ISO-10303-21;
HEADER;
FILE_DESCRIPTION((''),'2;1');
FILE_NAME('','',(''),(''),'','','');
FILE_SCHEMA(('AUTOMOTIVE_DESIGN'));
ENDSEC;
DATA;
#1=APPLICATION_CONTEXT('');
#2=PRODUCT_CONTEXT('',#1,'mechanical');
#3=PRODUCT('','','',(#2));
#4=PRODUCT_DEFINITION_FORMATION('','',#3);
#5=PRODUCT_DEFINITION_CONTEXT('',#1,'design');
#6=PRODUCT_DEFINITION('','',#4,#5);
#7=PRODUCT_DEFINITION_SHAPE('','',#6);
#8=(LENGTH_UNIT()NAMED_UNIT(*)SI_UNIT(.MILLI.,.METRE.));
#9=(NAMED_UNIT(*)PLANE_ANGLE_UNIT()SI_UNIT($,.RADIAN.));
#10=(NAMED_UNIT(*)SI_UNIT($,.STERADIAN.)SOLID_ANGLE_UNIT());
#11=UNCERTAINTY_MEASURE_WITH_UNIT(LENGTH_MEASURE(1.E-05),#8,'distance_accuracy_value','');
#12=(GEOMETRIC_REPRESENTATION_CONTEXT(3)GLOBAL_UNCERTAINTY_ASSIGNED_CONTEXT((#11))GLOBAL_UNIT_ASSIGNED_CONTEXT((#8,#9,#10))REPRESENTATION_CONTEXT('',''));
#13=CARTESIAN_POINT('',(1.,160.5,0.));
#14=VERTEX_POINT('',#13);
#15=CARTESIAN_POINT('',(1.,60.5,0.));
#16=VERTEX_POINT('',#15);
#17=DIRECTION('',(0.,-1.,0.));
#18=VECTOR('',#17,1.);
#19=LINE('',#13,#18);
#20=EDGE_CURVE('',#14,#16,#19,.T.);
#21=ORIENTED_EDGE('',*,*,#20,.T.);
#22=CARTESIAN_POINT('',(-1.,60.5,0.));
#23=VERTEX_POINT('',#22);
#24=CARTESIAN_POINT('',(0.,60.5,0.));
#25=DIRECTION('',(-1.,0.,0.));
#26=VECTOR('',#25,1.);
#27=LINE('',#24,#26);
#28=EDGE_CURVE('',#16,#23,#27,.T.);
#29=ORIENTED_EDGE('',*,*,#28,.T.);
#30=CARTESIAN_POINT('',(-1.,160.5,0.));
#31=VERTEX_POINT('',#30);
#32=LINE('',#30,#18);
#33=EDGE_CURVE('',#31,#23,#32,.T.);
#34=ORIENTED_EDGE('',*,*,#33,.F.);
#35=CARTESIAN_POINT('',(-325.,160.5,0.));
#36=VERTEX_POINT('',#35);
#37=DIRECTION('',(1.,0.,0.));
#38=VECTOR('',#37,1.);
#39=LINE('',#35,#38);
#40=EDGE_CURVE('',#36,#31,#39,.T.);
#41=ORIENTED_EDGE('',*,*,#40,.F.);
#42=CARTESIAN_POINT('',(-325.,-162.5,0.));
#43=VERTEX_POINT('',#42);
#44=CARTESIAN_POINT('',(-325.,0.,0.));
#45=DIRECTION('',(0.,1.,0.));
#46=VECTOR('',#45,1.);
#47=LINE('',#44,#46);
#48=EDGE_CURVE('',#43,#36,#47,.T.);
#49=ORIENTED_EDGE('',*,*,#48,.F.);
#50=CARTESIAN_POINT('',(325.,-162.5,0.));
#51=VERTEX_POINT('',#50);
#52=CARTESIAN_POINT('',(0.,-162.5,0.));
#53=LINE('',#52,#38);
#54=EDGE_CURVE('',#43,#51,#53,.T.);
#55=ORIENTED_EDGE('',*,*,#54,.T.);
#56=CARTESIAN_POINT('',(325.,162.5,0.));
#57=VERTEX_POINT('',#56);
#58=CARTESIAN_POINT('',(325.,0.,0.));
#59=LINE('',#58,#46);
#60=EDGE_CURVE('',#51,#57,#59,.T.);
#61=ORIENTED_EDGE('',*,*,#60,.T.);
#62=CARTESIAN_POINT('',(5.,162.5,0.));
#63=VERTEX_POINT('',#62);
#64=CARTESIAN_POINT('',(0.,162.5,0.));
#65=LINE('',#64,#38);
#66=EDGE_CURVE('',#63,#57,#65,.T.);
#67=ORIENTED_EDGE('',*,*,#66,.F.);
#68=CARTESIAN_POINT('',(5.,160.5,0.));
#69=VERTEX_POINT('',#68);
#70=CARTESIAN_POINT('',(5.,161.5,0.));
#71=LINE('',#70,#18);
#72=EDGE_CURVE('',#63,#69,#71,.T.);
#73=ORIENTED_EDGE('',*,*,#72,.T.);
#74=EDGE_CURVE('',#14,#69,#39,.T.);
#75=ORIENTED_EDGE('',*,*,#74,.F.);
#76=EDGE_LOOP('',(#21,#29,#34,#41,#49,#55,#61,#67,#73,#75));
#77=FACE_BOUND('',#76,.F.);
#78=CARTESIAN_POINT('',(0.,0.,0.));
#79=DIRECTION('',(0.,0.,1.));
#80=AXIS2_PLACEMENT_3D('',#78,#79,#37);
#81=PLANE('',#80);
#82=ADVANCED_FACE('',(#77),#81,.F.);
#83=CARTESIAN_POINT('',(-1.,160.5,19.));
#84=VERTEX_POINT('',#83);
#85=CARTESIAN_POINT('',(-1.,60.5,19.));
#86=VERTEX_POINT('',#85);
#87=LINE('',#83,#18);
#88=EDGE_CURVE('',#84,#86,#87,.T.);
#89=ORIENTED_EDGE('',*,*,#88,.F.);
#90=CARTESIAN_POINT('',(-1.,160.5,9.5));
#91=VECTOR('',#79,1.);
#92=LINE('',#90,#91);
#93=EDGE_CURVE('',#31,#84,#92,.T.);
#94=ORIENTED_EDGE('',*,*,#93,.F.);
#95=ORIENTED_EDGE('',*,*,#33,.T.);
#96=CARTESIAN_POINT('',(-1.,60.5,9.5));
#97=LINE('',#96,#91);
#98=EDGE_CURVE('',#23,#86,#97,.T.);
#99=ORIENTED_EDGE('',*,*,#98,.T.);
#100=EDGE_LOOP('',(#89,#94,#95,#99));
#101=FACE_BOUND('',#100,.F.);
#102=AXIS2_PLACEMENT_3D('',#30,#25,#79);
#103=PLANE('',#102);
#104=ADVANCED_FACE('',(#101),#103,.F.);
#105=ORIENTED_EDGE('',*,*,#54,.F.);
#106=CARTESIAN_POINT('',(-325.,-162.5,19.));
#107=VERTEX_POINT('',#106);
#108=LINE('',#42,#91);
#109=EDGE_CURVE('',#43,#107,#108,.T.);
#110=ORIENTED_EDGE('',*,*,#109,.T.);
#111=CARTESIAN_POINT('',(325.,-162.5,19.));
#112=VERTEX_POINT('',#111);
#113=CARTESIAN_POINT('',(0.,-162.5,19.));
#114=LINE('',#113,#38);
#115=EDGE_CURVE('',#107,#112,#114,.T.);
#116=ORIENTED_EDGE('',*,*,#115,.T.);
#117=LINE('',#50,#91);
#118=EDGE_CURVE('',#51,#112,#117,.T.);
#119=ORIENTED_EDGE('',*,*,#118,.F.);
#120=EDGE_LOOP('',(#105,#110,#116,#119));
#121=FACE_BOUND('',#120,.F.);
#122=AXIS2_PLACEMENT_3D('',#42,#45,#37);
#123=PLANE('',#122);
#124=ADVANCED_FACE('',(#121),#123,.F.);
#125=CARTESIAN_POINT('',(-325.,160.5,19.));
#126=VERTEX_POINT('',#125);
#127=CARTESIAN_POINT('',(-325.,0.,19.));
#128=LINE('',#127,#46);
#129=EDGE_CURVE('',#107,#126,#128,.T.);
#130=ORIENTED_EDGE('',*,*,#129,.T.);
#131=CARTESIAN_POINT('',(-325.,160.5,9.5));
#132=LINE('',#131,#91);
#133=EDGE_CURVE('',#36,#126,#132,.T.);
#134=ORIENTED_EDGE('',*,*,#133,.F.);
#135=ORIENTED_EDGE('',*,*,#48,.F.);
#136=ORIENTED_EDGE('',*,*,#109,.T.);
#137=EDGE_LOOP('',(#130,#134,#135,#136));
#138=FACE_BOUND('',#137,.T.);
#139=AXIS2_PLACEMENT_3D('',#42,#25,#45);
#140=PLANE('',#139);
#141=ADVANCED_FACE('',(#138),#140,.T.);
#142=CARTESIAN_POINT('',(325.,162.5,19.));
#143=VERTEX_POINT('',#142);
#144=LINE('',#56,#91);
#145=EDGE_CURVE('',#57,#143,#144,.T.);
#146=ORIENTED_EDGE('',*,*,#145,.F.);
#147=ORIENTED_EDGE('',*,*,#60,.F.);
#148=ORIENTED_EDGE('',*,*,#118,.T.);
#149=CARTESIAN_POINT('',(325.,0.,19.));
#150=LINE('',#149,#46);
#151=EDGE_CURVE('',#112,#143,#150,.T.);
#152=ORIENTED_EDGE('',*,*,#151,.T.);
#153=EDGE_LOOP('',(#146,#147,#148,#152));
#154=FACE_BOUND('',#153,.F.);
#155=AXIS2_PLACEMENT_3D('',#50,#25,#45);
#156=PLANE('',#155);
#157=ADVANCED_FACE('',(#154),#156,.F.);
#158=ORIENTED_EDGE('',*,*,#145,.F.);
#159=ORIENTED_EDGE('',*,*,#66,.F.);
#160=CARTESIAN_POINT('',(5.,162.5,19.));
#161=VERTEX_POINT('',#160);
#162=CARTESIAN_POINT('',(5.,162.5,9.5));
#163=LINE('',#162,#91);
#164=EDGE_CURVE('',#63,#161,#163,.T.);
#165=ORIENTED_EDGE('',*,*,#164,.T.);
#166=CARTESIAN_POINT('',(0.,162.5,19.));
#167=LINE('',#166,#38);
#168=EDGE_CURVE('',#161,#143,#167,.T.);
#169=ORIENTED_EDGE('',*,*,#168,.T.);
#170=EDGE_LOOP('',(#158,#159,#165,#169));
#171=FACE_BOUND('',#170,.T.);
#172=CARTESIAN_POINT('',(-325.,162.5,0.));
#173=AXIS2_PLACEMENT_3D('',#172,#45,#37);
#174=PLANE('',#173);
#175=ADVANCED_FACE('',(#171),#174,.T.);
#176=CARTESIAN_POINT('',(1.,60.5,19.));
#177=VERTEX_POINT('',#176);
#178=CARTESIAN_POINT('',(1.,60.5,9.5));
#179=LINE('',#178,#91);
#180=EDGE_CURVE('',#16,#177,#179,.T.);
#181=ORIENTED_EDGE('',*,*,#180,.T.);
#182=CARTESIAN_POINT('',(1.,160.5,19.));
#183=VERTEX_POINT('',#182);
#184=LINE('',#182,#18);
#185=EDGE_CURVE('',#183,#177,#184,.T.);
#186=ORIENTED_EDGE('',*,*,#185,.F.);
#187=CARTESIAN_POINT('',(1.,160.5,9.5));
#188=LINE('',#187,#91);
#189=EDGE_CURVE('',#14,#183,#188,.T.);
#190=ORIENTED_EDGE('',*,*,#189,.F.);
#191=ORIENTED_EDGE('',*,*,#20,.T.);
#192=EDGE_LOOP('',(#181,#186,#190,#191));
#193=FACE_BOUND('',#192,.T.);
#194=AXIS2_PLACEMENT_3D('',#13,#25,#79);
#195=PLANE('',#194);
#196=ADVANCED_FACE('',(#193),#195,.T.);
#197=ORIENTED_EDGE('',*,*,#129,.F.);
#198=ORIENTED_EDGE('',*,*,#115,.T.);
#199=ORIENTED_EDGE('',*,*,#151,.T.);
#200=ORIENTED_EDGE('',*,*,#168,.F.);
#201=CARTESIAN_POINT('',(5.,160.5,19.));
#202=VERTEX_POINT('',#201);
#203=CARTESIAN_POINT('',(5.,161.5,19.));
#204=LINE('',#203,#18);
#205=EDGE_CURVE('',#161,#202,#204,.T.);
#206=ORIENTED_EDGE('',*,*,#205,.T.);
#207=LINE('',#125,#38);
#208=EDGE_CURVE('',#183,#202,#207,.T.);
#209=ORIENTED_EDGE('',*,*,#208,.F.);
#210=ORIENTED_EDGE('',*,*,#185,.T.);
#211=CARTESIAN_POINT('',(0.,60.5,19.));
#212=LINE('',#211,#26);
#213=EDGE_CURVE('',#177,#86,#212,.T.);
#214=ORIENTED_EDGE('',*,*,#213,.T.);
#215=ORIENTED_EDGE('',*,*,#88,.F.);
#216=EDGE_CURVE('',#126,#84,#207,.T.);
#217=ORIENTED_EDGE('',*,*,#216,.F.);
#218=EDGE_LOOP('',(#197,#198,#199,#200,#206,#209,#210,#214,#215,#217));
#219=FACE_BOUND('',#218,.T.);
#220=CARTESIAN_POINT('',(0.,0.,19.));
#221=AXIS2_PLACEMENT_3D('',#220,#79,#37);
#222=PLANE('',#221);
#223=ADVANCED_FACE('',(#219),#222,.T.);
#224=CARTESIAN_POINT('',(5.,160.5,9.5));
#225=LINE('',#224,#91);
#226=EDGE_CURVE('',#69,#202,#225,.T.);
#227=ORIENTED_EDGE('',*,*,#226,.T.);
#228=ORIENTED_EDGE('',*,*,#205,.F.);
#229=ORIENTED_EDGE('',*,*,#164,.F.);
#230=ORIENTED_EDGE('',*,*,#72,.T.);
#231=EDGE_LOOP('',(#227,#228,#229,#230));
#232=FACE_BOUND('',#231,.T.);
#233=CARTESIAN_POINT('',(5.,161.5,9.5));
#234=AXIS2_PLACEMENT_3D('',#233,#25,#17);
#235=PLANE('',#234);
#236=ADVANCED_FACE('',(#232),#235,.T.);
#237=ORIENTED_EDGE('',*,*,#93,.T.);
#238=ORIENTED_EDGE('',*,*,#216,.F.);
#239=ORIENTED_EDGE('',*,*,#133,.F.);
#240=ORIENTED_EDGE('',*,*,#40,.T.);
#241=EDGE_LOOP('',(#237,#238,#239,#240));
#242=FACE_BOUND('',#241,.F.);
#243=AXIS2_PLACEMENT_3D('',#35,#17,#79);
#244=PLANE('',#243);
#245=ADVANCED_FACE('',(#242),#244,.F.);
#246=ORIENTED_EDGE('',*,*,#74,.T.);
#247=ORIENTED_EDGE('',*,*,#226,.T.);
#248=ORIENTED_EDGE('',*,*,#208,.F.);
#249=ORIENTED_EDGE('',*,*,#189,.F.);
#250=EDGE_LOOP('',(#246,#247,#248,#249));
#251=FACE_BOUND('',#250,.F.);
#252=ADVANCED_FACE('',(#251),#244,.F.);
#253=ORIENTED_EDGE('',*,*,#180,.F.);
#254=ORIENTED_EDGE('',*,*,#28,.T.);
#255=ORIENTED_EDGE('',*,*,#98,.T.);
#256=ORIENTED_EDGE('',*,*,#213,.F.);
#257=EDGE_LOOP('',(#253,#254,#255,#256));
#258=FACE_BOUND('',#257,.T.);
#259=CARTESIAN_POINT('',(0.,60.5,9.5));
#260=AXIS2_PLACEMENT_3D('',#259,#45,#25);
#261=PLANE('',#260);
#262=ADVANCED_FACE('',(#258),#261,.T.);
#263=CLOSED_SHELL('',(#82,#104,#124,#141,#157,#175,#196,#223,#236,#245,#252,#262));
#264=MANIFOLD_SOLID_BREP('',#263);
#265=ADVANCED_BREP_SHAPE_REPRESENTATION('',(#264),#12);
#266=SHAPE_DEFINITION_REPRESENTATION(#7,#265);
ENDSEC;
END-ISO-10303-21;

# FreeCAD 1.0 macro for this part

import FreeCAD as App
import Part
import Sketcher

V = App.Vector

doc = App.newDocument("Part")
params = doc.addObject("Spreadsheet::Sheet", "Params")
for row, (alias, value) in enumerate([
    ("sketch1_width", "650 mm"),
    ("sketch1_height", "325 mm"),
    ("pad1_length", "19 mm"),
    ("sketch2_width", "2 mm"),
    ("sketch2_height", "19 mm"),
    ("pocket1_length", "330 mm"),
    ("sketch3_width", "2 mm"),
    ("sketch3_height", "19 mm"),
    ("pocket2_length", "100 mm"),
], start=1):
    params.set(f"A{row}", alias)
    params.set(f"B{row}", "=" + value)
    params.setAlias(f"B{row}", alias)

body = doc.addObject("PartDesign::Body", "Body")

# Sketch on XY plane
sketch1 = body.newObject("Sketcher::SketchObject", "Sketch")
sketch1.AttachmentSupport = (doc.getObject("XY_Plane"), [""])
sketch1.MapMode = "FlatFace"
sketch1.addGeometry(Part.LineSegment(V(-325, 162, 0), V(-325, -162, 0)), False)
sketch1.addGeometry(Part.LineSegment(V(-325, -162, 0), V(325, -162, 0)), False)
sketch1.addGeometry(Part.LineSegment(V(325, -162, 0), V(325, 162, 0)), False)
sketch1.addGeometry(Part.LineSegment(V(325, 162, 0), V(-325, 162, 0)), False)
sketch1.addConstraint(Sketcher.Constraint("Coincident", 0, 2, 1, 1))
sketch1.addConstraint(Sketcher.Constraint("Coincident", 1, 2, 2, 1))
sketch1.addConstraint(Sketcher.Constraint("Coincident", 2, 2, 3, 1))
sketch1.addConstraint(Sketcher.Constraint("Coincident", 3, 2, 0, 1))
sketch1.addConstraint(Sketcher.Constraint("Vertical", 0))
sketch1.addConstraint(Sketcher.Constraint("Horizontal", 1))
sketch1.addConstraint(Sketcher.Constraint("Vertical", 2))
sketch1.addConstraint(Sketcher.Constraint("Horizontal", 3))
sketch1.addConstraint(Sketcher.Constraint("Symmetric", 0, 2, 2, 2, -1, 1))
sketch1.addConstraint(Sketcher.Constraint("DistanceX", 1, 1, 1, 2, 650.0))
sketch1.addConstraint(Sketcher.Constraint("DistanceY", 0, 2, 0, 1, 325.0))
sketch1.setExpression("Constraints[9]", "Params.sketch1_width")
sketch1.setExpression("Constraints[10]", "Params.sketch1_height")
pad1 = body.newObject("PartDesign::Pad", "Pad")
pad1.Profile = sketch1
pad1.setExpression("Length", "Params.pad1_length")

# Sketch on YZ plane
sketch2 = body.newObject("Sketcher::SketchObject", "Sketch001")
sketch2.AttachmentSupport = (doc.getObject("YZ_Plane"), [""])
sketch2.MapMode = "FlatFace"
sketch2.AttachmentOffset = App.Placement(V(0, 0, -325), App.Rotation())
sketch2.addGeometry(Part.LineSegment(V(162.5, 19, 0), V(162.5, 0, 0)), False)
sketch2.addGeometry(Part.LineSegment(V(162.5, 0, 0), V(160.5, 0, 0)), False)
sketch2.addGeometry(Part.LineSegment(V(160.5, 0, 0), V(160.5, 19, 0)), False)
sketch2.addGeometry(Part.LineSegment(V(160.5, 19, 0), V(162.5, 19, 0)), False)
sketch2.addConstraint(Sketcher.Constraint("Coincident", 0, 2, 1, 1))
sketch2.addConstraint(Sketcher.Constraint("Coincident", 1, 2, 2, 1))
sketch2.addConstraint(Sketcher.Constraint("Coincident", 2, 2, 3, 1))
sketch2.addConstraint(Sketcher.Constraint("Coincident", 3, 2, 0, 1))
sketch2.addConstraint(Sketcher.Constraint("Vertical", 0))
sketch2.addConstraint(Sketcher.Constraint("Horizontal", 1))
sketch2.addConstraint(Sketcher.Constraint("Vertical", 2))
sketch2.addConstraint(Sketcher.Constraint("Horizontal", 3))
sketch2.addConstraint(Sketcher.Constraint("PointOnObject", 0, 2, -1))
sketch2.addConstraint(Sketcher.Constraint("DistanceX", 1, 2, 1, 1, 2.0))
sketch2.addConstraint(Sketcher.Constraint("DistanceY", 0, 2, 0, 1, 19.0))
sketch2.addConstraint(Sketcher.Constraint("DistanceX", -1, 1, 0, 2, 162.5))
sketch2.setExpression("Constraints[9]", "Params.sketch2_width")
sketch2.setExpression("Constraints[10]", "Params.sketch2_height")
pocket1 = body.newObject("PartDesign::Pocket", "Pocket")
pocket1.Profile = sketch2
pocket1.setExpression("Length", "Params.pocket1_length")
pocket1.Reversed = True

# Sketch on XZ plane
sketch3 = body.newObject("Sketcher::SketchObject", "Sketch002")
sketch3.AttachmentSupport = (doc.getObject("XZ_Plane"), [""])
sketch3.MapMode = "FlatFace"
sketch3.AttachmentOffset = App.Placement(V(0, 0, -160.5), App.Rotation())
sketch3.addGeometry(Part.LineSegment(V(1, 19, 0), V(1, 0, 0)), False)
sketch3.addGeometry(Part.LineSegment(V(1, 0, 0), V(-1, 0, 0)), False)
sketch3.addGeometry(Part.LineSegment(V(-1, 0, 0), V(-1, 19, 0)), False)
sketch3.addGeometry(Part.LineSegment(V(-1, 19, 0), V(1, 19, 0)), False)
sketch3.addConstraint(Sketcher.Constraint("Coincident", 0, 2, 1, 1))
sketch3.addConstraint(Sketcher.Constraint("Coincident", 1, 2, 2, 1))
sketch3.addConstraint(Sketcher.Constraint("Coincident", 2, 2, 3, 1))
sketch3.addConstraint(Sketcher.Constraint("Coincident", 3, 2, 0, 1))
sketch3.addConstraint(Sketcher.Constraint("Vertical", 0))
sketch3.addConstraint(Sketcher.Constraint("Horizontal", 1))
sketch3.addConstraint(Sketcher.Constraint("Vertical", 2))
sketch3.addConstraint(Sketcher.Constraint("Horizontal", 3))
sketch3.addConstraint(Sketcher.Constraint("Symmetric", 0, 2, 1, 2, -1, 1))
sketch3.addConstraint(Sketcher.Constraint("DistanceX", 1, 2, 1, 1, 2.0))
sketch3.addConstraint(Sketcher.Constraint("DistanceY", 0, 2, 0, 1, 19.0))
sketch3.setExpression("Constraints[9]", "Params.sketch3_width")
sketch3.setExpression("Constraints[10]", "Params.sketch3_height")
pocket2 = body.newObject("PartDesign::Pocket", "Pocket001")
pocket2.Profile = sketch3
pocket2.setExpression("Length", "Params.pocket2_length")
pocket2.Reversed = True

doc.recompute()
